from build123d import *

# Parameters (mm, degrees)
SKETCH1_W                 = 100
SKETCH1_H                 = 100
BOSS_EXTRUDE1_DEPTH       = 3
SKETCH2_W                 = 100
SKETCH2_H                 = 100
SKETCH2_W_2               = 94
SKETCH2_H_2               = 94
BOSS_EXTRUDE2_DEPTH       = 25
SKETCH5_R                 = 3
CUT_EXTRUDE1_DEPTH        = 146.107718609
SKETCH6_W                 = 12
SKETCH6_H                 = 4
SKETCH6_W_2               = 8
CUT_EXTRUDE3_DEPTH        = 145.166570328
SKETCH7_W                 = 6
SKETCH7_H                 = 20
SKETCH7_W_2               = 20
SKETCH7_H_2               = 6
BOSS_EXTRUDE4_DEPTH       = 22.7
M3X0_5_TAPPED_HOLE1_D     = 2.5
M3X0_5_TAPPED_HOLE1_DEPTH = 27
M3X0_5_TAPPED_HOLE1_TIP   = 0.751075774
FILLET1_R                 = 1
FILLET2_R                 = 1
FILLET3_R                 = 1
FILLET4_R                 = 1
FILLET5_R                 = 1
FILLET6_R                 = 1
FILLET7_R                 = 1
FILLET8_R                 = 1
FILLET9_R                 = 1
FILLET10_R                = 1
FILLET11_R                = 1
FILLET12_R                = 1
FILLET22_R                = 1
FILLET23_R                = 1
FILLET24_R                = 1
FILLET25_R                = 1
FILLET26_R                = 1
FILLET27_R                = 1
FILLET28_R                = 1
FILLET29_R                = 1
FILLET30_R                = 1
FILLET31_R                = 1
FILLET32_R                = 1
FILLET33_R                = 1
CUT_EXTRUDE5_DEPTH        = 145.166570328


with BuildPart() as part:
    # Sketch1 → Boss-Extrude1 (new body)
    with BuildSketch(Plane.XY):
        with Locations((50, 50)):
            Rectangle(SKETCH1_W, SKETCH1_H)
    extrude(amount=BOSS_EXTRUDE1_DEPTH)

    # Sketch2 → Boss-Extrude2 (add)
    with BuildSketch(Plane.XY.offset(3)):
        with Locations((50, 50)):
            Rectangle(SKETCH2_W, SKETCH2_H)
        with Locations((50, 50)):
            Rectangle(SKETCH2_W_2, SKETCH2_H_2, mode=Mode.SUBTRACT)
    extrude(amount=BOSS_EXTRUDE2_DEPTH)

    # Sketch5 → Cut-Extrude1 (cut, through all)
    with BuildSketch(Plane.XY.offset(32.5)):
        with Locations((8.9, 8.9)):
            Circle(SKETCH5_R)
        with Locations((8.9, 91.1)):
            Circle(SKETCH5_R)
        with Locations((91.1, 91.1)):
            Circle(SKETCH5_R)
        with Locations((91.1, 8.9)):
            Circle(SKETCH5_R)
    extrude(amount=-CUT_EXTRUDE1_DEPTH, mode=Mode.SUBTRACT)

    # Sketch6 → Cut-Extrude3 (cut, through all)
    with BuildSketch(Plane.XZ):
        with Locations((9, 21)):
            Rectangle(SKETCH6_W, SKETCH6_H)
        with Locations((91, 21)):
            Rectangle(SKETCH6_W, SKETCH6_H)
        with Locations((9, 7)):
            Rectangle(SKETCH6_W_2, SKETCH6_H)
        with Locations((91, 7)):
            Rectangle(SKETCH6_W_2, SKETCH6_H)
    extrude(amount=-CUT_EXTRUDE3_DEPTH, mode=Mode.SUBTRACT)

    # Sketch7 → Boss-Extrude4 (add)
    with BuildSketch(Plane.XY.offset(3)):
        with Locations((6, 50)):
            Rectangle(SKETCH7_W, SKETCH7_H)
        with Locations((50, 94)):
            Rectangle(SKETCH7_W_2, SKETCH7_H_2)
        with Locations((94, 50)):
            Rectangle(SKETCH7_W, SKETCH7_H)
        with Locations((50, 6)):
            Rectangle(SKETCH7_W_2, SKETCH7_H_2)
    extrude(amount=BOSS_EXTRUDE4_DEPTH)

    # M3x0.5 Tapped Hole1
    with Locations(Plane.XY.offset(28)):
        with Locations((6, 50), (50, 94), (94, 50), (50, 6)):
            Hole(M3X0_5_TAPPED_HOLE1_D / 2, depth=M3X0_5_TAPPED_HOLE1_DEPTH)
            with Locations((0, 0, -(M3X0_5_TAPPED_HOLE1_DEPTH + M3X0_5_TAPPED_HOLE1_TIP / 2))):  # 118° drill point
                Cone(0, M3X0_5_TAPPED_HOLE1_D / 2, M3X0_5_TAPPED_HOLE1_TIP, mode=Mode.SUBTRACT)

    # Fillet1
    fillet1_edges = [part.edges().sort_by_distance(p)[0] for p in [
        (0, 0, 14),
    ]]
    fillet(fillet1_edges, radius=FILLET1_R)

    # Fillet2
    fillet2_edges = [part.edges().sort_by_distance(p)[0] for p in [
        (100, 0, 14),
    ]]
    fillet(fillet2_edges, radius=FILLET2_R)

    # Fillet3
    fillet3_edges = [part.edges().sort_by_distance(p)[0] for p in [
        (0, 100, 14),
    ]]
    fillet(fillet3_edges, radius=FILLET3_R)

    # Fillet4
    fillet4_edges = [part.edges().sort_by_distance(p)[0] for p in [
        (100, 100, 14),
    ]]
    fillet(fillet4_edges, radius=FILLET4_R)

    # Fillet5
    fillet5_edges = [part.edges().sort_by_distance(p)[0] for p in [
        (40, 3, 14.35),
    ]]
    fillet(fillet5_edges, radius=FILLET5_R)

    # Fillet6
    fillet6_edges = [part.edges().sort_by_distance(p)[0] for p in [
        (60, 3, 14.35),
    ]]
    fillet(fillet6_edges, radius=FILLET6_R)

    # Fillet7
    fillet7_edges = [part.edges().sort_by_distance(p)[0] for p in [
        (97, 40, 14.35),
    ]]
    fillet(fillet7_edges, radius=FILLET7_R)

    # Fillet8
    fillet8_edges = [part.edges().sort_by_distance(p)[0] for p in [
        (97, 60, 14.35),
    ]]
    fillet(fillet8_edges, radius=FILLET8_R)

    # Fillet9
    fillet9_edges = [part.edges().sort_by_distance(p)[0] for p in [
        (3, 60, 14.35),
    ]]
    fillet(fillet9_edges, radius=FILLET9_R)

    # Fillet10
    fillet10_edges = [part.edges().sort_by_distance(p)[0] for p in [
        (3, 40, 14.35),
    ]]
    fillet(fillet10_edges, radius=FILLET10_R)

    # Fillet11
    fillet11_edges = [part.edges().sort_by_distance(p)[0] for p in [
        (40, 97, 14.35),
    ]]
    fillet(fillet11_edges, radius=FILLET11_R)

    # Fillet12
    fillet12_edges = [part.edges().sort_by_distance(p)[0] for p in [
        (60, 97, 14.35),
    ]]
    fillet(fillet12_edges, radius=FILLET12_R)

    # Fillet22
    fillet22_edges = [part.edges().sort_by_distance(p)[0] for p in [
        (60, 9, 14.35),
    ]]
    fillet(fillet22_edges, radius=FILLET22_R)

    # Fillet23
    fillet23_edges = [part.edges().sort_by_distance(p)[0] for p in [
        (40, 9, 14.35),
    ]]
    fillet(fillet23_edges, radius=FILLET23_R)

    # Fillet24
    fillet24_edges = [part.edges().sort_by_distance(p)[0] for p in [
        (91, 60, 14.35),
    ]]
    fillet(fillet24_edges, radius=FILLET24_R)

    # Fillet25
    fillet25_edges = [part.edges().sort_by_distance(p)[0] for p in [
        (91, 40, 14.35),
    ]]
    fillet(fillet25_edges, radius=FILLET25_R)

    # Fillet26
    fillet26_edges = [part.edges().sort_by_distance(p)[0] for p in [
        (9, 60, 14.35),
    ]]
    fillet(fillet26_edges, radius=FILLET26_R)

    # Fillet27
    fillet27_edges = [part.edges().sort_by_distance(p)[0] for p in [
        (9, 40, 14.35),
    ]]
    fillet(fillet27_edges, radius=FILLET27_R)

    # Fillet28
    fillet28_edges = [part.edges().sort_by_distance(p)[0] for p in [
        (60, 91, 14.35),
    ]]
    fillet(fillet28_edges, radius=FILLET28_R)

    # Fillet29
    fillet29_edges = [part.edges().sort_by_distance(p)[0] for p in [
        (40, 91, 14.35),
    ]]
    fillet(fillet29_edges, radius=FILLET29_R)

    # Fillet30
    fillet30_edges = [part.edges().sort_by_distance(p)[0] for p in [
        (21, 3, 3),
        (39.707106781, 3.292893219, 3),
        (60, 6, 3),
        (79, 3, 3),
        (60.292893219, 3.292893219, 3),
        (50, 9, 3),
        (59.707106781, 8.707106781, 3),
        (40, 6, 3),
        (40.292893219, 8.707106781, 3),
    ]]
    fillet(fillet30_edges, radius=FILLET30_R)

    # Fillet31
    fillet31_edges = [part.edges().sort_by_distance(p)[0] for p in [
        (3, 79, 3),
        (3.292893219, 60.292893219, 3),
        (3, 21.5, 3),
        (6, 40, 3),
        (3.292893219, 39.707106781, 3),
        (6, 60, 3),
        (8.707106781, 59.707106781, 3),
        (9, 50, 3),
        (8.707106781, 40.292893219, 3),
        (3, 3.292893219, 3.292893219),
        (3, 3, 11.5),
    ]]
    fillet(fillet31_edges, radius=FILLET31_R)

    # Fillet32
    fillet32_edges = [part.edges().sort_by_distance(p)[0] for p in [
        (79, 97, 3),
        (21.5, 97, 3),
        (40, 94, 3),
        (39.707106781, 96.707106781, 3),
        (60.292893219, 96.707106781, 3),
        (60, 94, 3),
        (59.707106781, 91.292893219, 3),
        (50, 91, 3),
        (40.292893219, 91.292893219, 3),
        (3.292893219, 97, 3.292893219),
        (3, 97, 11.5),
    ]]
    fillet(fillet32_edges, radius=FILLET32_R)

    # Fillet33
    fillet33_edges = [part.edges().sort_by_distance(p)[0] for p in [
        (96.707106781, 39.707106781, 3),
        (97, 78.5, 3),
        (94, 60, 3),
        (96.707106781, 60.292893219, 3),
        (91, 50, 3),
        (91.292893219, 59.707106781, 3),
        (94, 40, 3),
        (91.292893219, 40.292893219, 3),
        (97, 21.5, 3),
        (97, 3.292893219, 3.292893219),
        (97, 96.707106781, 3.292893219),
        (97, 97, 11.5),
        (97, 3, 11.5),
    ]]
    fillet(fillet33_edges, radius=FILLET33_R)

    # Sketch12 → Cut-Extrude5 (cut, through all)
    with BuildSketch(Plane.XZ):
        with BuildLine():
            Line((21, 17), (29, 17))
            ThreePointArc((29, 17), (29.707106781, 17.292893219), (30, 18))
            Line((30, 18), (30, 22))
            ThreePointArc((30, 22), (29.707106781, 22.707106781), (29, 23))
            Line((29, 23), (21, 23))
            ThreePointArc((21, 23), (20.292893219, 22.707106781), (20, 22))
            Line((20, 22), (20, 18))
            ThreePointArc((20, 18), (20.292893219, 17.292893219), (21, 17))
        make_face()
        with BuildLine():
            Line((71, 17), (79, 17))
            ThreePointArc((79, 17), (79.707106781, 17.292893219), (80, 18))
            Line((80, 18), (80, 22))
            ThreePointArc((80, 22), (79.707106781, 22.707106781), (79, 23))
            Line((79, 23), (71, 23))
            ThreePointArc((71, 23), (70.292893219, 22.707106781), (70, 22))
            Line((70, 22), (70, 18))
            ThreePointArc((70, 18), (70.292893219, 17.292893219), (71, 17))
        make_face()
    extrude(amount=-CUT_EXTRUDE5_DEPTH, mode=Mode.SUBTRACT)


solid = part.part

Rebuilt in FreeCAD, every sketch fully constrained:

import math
import FreeCAD as App
import Part
import Sketcher

V = App.Vector
Q = App.Units.Quantity


def edges_at(feature, points):
    """Names of the edges that pass closest to the given points."""
    edges = feature.Shape.Edges
    near = lambda p: min(range(len(edges)), key=lambda i: edges[i].distToShape(Part.Vertex(*p))[0])
    return sorted({f"Edge{near(p) + 1}" for p in points})


def add_polygon(sketch, points):
    """Adds a closed chain of lines whose ends are joined by coincident constraints."""
    first, n = sketch.GeometryCount, len(points)
    for a, b in zip(points, points[1:] + points[:1]):
        sketch.addGeometry(Part.LineSegment(App.Vector(*a, 0), App.Vector(*b, 0)), False)
    for i in range(n):
        sketch.addConstraint(Sketcher.Constraint("Coincident", first + i, 2, first + (i + 1) % n, 1))

doc = App.newDocument("Part")
body = doc.addObject("PartDesign::Body", "Body")

# Sketch on XY plane
sketch1 = body.newObject("Sketcher::SketchObject", "Sketch")
sketch1.AttachmentSupport = (doc.getObject("XY_Plane"), [""])
sketch1.MapMode = "FlatFace"
add_polygon(sketch1, [(0, 100), (0, 0), (100, 0), (100, 100)])  # lines 0-3
sketch1.addConstraint(Sketcher.Constraint("Vertical", 0))
sketch1.addConstraint(Sketcher.Constraint("Horizontal", 1))
sketch1.addConstraint(Sketcher.Constraint("Vertical", 2))
sketch1.addConstraint(Sketcher.Constraint("Horizontal", 3))
sketch1.addConstraint(Sketcher.Constraint("Coincident", 0, 2, -1, 1))
sketch1.addConstraint(Sketcher.Constraint("Equal", 3, 0))
sketch1.addConstraint(Sketcher.Constraint("DistanceX", 1, 1, 1, 2, Q("100 mm")))
pad1 = body.newObject("PartDesign::Pad", "Pad")
pad1.Profile = sketch1
pad1.Length = 3

# Sketch on XY plane
sketch2 = body.newObject("Sketcher::SketchObject", "Sketch001")
sketch2.AttachmentSupport = (doc.getObject("XY_Plane"), [""])
sketch2.MapMode = "FlatFace"
sketch2.AttachmentOffset = App.Placement(V(0, 0, 3), App.Rotation())
add_polygon(sketch2, [(0, 100), (0, 0), (100, 0), (100, 100)])  # lines 0-3
add_polygon(sketch2, [(97, 3), (3, 3), (3, 97), (97, 97)])  # lines 4-7
sketch2.addConstraint(Sketcher.Constraint("Vertical", 0))
sketch2.addConstraint(Sketcher.Constraint("Horizontal", 1))
sketch2.addConstraint(Sketcher.Constraint("Vertical", 2))
sketch2.addConstraint(Sketcher.Constraint("Horizontal", 3))
sketch2.addConstraint(Sketcher.Constraint("Horizontal", 4))
sketch2.addConstraint(Sketcher.Constraint("Vertical", 5))
sketch2.addConstraint(Sketcher.Constraint("Horizontal", 6))
sketch2.addConstraint(Sketcher.Constraint("Vertical", 7))
sketch2.addConstraint(Sketcher.Constraint("Coincident", 0, 2, -1, 1))
sketch2.addConstraint(Sketcher.Constraint("Equal", 3, 0))
sketch2.addConstraint(Sketcher.Constraint("Equal", 6, 5))
sketch2.addConstraint(Sketcher.Constraint("DistanceX", 1, 1, 1, 2, Q("100 mm")))
sketch2.addConstraint(Sketcher.Constraint("DistanceX", 4, 2, 4, 1, Q("94 mm")))
sketch2.addConstraint(Sketcher.Constraint("DistanceX", -1, 1, 4, 2, Q("3 mm")))
sketch2.addConstraint(Sketcher.Constraint("DistanceY", -1, 1, 4, 2, Q("3 mm")))
pad2 = body.newObject("PartDesign::Pad", "Pad001")
pad2.Profile = sketch2
pad2.Length = 25

# Sketch on XY plane
sketch3 = body.newObject("Sketcher::SketchObject", "Sketch002")
sketch3.AttachmentSupport = (doc.getObject("XY_Plane"), [""])
sketch3.MapMode = "FlatFace"
sketch3.AttachmentOffset = App.Placement(V(0, 0, 32.5), App.Rotation())
sketch3.addGeometry(Part.Circle(V(8.9, 8.9, 0), V(0, 0, 1), 3), False)
sketch3.addGeometry(Part.Circle(V(8.9, 91.1, 0), V(0, 0, 1), 3), False)
sketch3.addGeometry(Part.Circle(V(91.1, 91.1, 0), V(0, 0, 1), 3), False)
sketch3.addGeometry(Part.Circle(V(91.1, 8.9, 0), V(0, 0, 1), 3), False)
sketch3.addConstraint(Sketcher.Constraint("Equal", 0, 1))
sketch3.addConstraint(Sketcher.Constraint("Equal", 1, 2))
sketch3.addConstraint(Sketcher.Constraint("Equal", 2, 3))
sketch3.addConstraint(Sketcher.Constraint("Horizontal", 1, 3, 2, 3))
sketch3.addConstraint(Sketcher.Constraint("Horizontal", 0, 3, 3, 3))
sketch3.addConstraint(Sketcher.Constraint("Vertical", 0, 3, 1, 3))
sketch3.addConstraint(Sketcher.Constraint("Vertical", 2, 3, 3, 3))
sketch3.addConstraint(Sketcher.Constraint("Diameter", 0, Q("6 mm")))
sketch3.addConstraint(Sketcher.Constraint("DistanceX", -1, 1, 0, 3, Q("8.9 mm")))
sketch3.addConstraint(Sketcher.Constraint("DistanceY", -1, 1, 0, 3, Q("8.9 mm")))
sketch3.addConstraint(Sketcher.Constraint("DistanceY", -1, 1, 1, 3, Q("91.1 mm")))
sketch3.addConstraint(Sketcher.Constraint("DistanceX", -1, 1, 2, 3, Q("91.1 mm")))
pocket1 = body.newObject("PartDesign::Pocket", "Pocket")
pocket1.Profile = sketch3
pocket1.Type = "ThroughAll"

# Sketch on XZ plane
sketch4 = body.newObject("Sketcher::SketchObject", "Sketch003")
sketch4.AttachmentSupport = (doc.getObject("XZ_Plane"), [""])
sketch4.MapMode = "FlatFace"
add_polygon(sketch4, [(3, 23), (3, 19), (15, 19), (15, 23)])  # lines 0-3
add_polygon(sketch4, [(85, 23), (85, 19), (97, 19), (97, 23)])  # lines 4-7
add_polygon(sketch4, [(5, 9), (5, 5), (13, 5), (13, 9)])  # lines 8-11
add_polygon(sketch4, [(87, 9), (87, 5), (95, 5), (95, 9)])  # lines 12-15
sketch4.addConstraint(Sketcher.Constraint("Vertical", 0))
sketch4.addConstraint(Sketcher.Constraint("Horizontal", 1))
sketch4.addConstraint(Sketcher.Constraint("Vertical", 2))
sketch4.addConstraint(Sketcher.Constraint("Horizontal", 3))
sketch4.addConstraint(Sketcher.Constraint("Vertical", 4))
sketch4.addConstraint(Sketcher.Constraint("Horizontal", 5))
sketch4.addConstraint(Sketcher.Constraint("Vertical", 6))
sketch4.addConstraint(Sketcher.Constraint("Horizontal", 7))
sketch4.addConstraint(Sketcher.Constraint("Vertical", 8))
sketch4.addConstraint(Sketcher.Constraint("Horizontal", 9))
sketch4.addConstraint(Sketcher.Constraint("Vertical", 10))
sketch4.addConstraint(Sketcher.Constraint("Horizontal", 11))
sketch4.addConstraint(Sketcher.Constraint("Vertical", 12))
sketch4.addConstraint(Sketcher.Constraint("Horizontal", 13))
sketch4.addConstraint(Sketcher.Constraint("Vertical", 14))
sketch4.addConstraint(Sketcher.Constraint("Horizontal", 15))
sketch4.addConstraint(Sketcher.Constraint("Horizontal", 1, 2, 4, 2))
sketch4.addConstraint(Sketcher.Constraint("Horizontal", 3, 2, 6, 2))
sketch4.addConstraint(Sketcher.Constraint("Horizontal", 9, 2, 12, 2))
sketch4.addConstraint(Sketcher.Constraint("Horizontal", 11, 2, 14, 2))
sketch4.addConstraint(Sketcher.Constraint("Equal", 3, 5))
sketch4.addConstraint(Sketcher.Constraint("Equal", 11, 13))
sketch4.addConstraint(Sketcher.Constraint("Equal", 6, 8))
sketch4.addConstraint(Sketcher.Constraint("DistanceX", 1, 1, 1, 2, Q("12 mm")))
sketch4.addConstraint(Sketcher.Constraint("DistanceX", 9, 1, 9, 2, Q("8 mm")))
sketch4.addConstraint(Sketcher.Constraint("DistanceY", 0, 2, 0, 1, Q("4 mm")))
sketch4.addConstraint(Sketcher.Constraint("DistanceX", -1, 1, 0, 2, Q("3 mm")))
sketch4.addConstraint(Sketcher.Constraint("DistanceY", -1, 1, 0, 2, Q("19 mm")))
sketch4.addConstraint(Sketcher.Constraint("DistanceX", -1, 1, 4, 2, Q("85 mm")))
sketch4.addConstraint(Sketcher.Constraint("DistanceX", -1, 1, 8, 2, Q("5 mm")))
sketch4.addConstraint(Sketcher.Constraint("DistanceY", -1, 1, 8, 2, Q("5 mm")))
sketch4.addConstraint(Sketcher.Constraint("DistanceX", -1, 1, 12, 2, Q("87 mm")))
pocket2 = body.newObject("PartDesign::Pocket", "Pocket001")
pocket2.Profile = sketch4
pocket2.Type = "ThroughAll"

# Sketch on XY plane
sketch5 = body.newObject("Sketcher::SketchObject", "Sketch004")
sketch5.AttachmentSupport = (doc.getObject("XY_Plane"), [""])
sketch5.MapMode = "FlatFace"
sketch5.AttachmentOffset = App.Placement(V(0, 0, 3), App.Rotation())
add_polygon(sketch5, [(3, 60), (3, 40), (9, 40), (9, 60)])  # lines 0-3
add_polygon(sketch5, [(40, 97), (40, 91), (60, 91), (60, 97)])  # lines 4-7
add_polygon(sketch5, [(91, 60), (91, 40), (97, 40), (97, 60)])  # lines 8-11
add_polygon(sketch5, [(40, 9), (40, 3), (60, 3), (60, 9)])  # lines 12-15
sketch5.addConstraint(Sketcher.Constraint("Vertical", 0))
sketch5.addConstraint(Sketcher.Constraint("Horizontal", 1))
sketch5.addConstraint(Sketcher.Constraint("Vertical", 2))
sketch5.addConstraint(Sketcher.Constraint("Horizontal", 3))
sketch5.addConstraint(Sketcher.Constraint("Vertical", 4))
sketch5.addConstraint(Sketcher.Constraint("Horizontal", 5))
sketch5.addConstraint(Sketcher.Constraint("Vertical", 6))
sketch5.addConstraint(Sketcher.Constraint("Horizontal", 7))
sketch5.addConstraint(Sketcher.Constraint("Vertical", 8))
sketch5.addConstraint(Sketcher.Constraint("Horizontal", 9))
sketch5.addConstraint(Sketcher.Constraint("Vertical", 10))
sketch5.addConstraint(Sketcher.Constraint("Horizontal", 11))
sketch5.addConstraint(Sketcher.Constraint("Vertical", 12))
sketch5.addConstraint(Sketcher.Constraint("Horizontal", 13))
sketch5.addConstraint(Sketcher.Constraint("Vertical", 14))
sketch5.addConstraint(Sketcher.Constraint("Horizontal", 15))
sketch5.addConstraint(Sketcher.Constraint("Horizontal", 1, 2, 8, 2))
sketch5.addConstraint(Sketcher.Constraint("Horizontal", 3, 2, 10, 2))
sketch5.addConstraint(Sketcher.Constraint("Vertical", 7, 2, 12, 2))
sketch5.addConstraint(Sketcher.Constraint("Vertical", 6, 2, 13, 2))
sketch5.addConstraint(Sketcher.Constraint("Equal", 3, 9))
sketch5.addConstraint(Sketcher.Constraint("Equal", 15, 0))
sketch5.addConstraint(Sketcher.Constraint("Equal", 11, 4))
sketch5.addConstraint(Sketcher.Constraint("Equal", 6, 12))
sketch5.addConstraint(Sketcher.Constraint("DistanceX", 1, 1, 1, 2, Q("6 mm")))
sketch5.addConstraint(Sketcher.Constraint("DistanceX", 5, 1, 5, 2, Q("20 mm")))
sketch5.addConstraint(Sketcher.Constraint("DistanceX", -1, 1, 0, 2, Q("3 mm")))
sketch5.addConstraint(Sketcher.Constraint("DistanceY", -1, 1, 0, 2, Q("40 mm")))
sketch5.addConstraint(Sketcher.Constraint("DistanceX", -1, 1, 4, 2, Q("40 mm")))
sketch5.addConstraint(Sketcher.Constraint("DistanceY", -1, 1, 4, 2, Q("91 mm")))
sketch5.addConstraint(Sketcher.Constraint("DistanceX", -1, 1, 8, 2, Q("91 mm")))
sketch5.addConstraint(Sketcher.Constraint("DistanceY", -1, 1, 12, 2, Q("3 mm")))
pad3 = body.newObject("PartDesign::Pad", "Pad002")
pad3.Profile = sketch5
pad3.Length = 22.7

# Sketch on XY plane
sketch6 = body.newObject("Sketcher::SketchObject", "Sketch005")
sketch6.AttachmentSupport = (doc.getObject("XY_Plane"), [""])
sketch6.MapMode = "FlatFace"
sketch6.AttachmentOffset = App.Placement(V(0, 0, 28), App.Rotation())
sketch6.addGeometry(Part.Circle(V(6, 50, 0), V(0, 0, 1), 1.25), False)
sketch6.addGeometry(Part.Circle(V(50, 94, 0), V(0, 0, 1), 1.25), False)
sketch6.addGeometry(Part.Circle(V(94, 50, 0), V(0, 0, 1), 1.25), False)
sketch6.addGeometry(Part.Circle(V(50, 6, 0), V(0, 0, 1), 1.25), False)
sketch6.addConstraint(Sketcher.Constraint("Equal", 0, 1))
sketch6.addConstraint(Sketcher.Constraint("Equal", 1, 2))
sketch6.addConstraint(Sketcher.Constraint("Equal", 2, 3))
sketch6.addConstraint(Sketcher.Constraint("Horizontal", 0, 3, 2, 3))
sketch6.addConstraint(Sketcher.Constraint("Vertical", 1, 3, 3, 3))
sketch6.addConstraint(Sketcher.Constraint("Diameter", 0, Q("2.5 mm")))
sketch6.addConstraint(Sketcher.Constraint("DistanceX", -1, 1, 0, 3, Q("6 mm")))
sketch6.addConstraint(Sketcher.Constraint("DistanceY", -1, 1, 0, 3, Q("50 mm")))
sketch6.addConstraint(Sketcher.Constraint("DistanceX", -1, 1, 1, 3, Q("50 mm")))
sketch6.addConstraint(Sketcher.Constraint("DistanceY", -1, 1, 1, 3, Q("94 mm")))
sketch6.addConstraint(Sketcher.Constraint("DistanceX", -1, 1, 2, 3, Q("94 mm")))
sketch6.addConstraint(Sketcher.Constraint("DistanceY", -1, 1, 3, 3, Q("6 mm")))
doc.recompute()
hole = body.newObject("PartDesign::Hole", "Hole")
hole.Profile = sketch6
hole.ThreadType = "None"
hole.Diameter = 2.5
hole.DepthType = "Dimension"
hole.Depth = 27
hole.DrillPoint = "Angled"
hole.DrillPointAngle = 118
doc.recompute()

fillet = body.newObject("PartDesign::Fillet", "Fillet")
fillet.Base = (hole, edges_at(hole, [(0, 0, 14)]))
fillet.Radius = 1
doc.recompute()

fillet2 = body.newObject("PartDesign::Fillet", "Fillet001")
fillet2.Base = (fillet, edges_at(fillet, [(100, 0, 14)]))
fillet2.Radius = 1
doc.recompute()

fillet3 = body.newObject("PartDesign::Fillet", "Fillet002")
fillet3.Base = (fillet2, edges_at(fillet2, [(0, 100, 14)]))
fillet3.Radius = 1
doc.recompute()

fillet4 = body.newObject("PartDesign::Fillet", "Fillet003")
fillet4.Base = (fillet3, edges_at(fillet3, [(100, 100, 14)]))
fillet4.Radius = 1
doc.recompute()

fillet5 = body.newObject("PartDesign::Fillet", "Fillet004")
fillet5.Base = (fillet4, edges_at(fillet4, [(40, 3, 14.35)]))
fillet5.Radius = 1
doc.recompute()

fillet6 = body.newObject("PartDesign::Fillet", "Fillet005")
fillet6.Base = (fillet5, edges_at(fillet5, [(60, 3, 14.35)]))
fillet6.Radius = 1
doc.recompute()

fillet7 = body.newObject("PartDesign::Fillet", "Fillet006")
fillet7.Base = (fillet6, edges_at(fillet6, [(97, 40, 14.35)]))
fillet7.Radius = 1
doc.recompute()

fillet8 = body.newObject("PartDesign::Fillet", "Fillet007")
fillet8.Base = (fillet7, edges_at(fillet7, [(97, 60, 14.35)]))
fillet8.Radius = 1
doc.recompute()

fillet9 = body.newObject("PartDesign::Fillet", "Fillet008")
fillet9.Base = (fillet8, edges_at(fillet8, [(3, 60, 14.35)]))
fillet9.Radius = 1
doc.recompute()

fillet10 = body.newObject("PartDesign::Fillet", "Fillet009")
fillet10.Base = (fillet9, edges_at(fillet9, [(3, 40, 14.35)]))
fillet10.Radius = 1
doc.recompute()

fillet11 = body.newObject("PartDesign::Fillet", "Fillet010")
fillet11.Base = (fillet10, edges_at(fillet10, [(40, 97, 14.35)]))
fillet11.Radius = 1
doc.recompute()

fillet12 = body.newObject("PartDesign::Fillet", "Fillet011")
fillet12.Base = (fillet11, edges_at(fillet11, [(60, 97, 14.35)]))
fillet12.Radius = 1
doc.recompute()

fillet13 = body.newObject("PartDesign::Fillet", "Fillet012")
fillet13.Base = (fillet12, edges_at(fillet12, [(60, 9, 14.35)]))
fillet13.Radius = 1
doc.recompute()

fillet14 = body.newObject("PartDesign::Fillet", "Fillet013")
fillet14.Base = (fillet13, edges_at(fillet13, [(40, 9, 14.35)]))
fillet14.Radius = 1
doc.recompute()

fillet15 = body.newObject("PartDesign::Fillet", "Fillet014")
fillet15.Base = (fillet14, edges_at(fillet14, [(91, 60, 14.35)]))
fillet15.Radius = 1
doc.recompute()

fillet16 = body.newObject("PartDesign::Fillet", "Fillet015")
fillet16.Base = (fillet15, edges_at(fillet15, [(91, 40, 14.35)]))
fillet16.Radius = 1
doc.recompute()

fillet17 = body.newObject("PartDesign::Fillet", "Fillet016")
fillet17.Base = (fillet16, edges_at(fillet16, [(9, 60, 14.35)]))
fillet17.Radius = 1
doc.recompute()

fillet18 = body.newObject("PartDesign::Fillet", "Fillet017")
fillet18.Base = (fillet17, edges_at(fillet17, [(9, 40, 14.35)]))
fillet18.Radius = 1
doc.recompute()

fillet19 = body.newObject("PartDesign::Fillet", "Fillet018")
fillet19.Base = (fillet18, edges_at(fillet18, [(60, 91, 14.35)]))
fillet19.Radius = 1
doc.recompute()

fillet20 = body.newObject("PartDesign::Fillet", "Fillet019")
fillet20.Base = (fillet19, edges_at(fillet19, [(40, 91, 14.35)]))
fillet20.Radius = 1
doc.recompute()

fillet21 = body.newObject("PartDesign::Fillet", "Fillet020")
fillet21.Base = (fillet20, edges_at(fillet20, [
    (21, 3, 3),
    (39.707, 3.293, 3),
    (60, 6, 3),
    (79, 3, 3),
    (60.293, 3.293, 3),
    (50, 9, 3),
    (59.707, 8.707, 3),
    (40, 6, 3),
    (40.293, 8.707, 3),
]))
fillet21.Radius = 1
doc.recompute()

fillet22 = body.newObject("PartDesign::Fillet", "Fillet021")
fillet22.Base = (fillet21, edges_at(fillet21, [
    (3, 79, 3),
    (3.293, 60.293, 3),
    (3, 21.5, 3),
    (6, 40, 3),
    (3.293, 39.707, 3),
    (6, 60, 3),
    (8.707, 59.707, 3),
    (9, 50, 3),
    (8.707, 40.293, 3),
    (3, 3.293, 3.293),
    (3, 3, 11.5),
]))
fillet22.Radius = 1
doc.recompute()

fillet23 = body.newObject("PartDesign::Fillet", "Fillet022")
fillet23.Base = (fillet22, edges_at(fillet22, [
    (79, 97, 3),
    (21.5, 97, 3),
    (40, 94, 3),
    (39.707, 96.707, 3),
    (60.293, 96.707, 3),
    (60, 94, 3),
    (59.707, 91.293, 3),
    (50, 91, 3),
    (40.293, 91.293, 3),
    (3.293, 97, 3.293),
    (3, 97, 11.5),
]))
fillet23.Radius = 1
doc.recompute()

fillet24 = body.newObject("PartDesign::Fillet", "Fillet023")
fillet24.Base = (fillet23, edges_at(fillet23, [
    (96.707, 39.707, 3),
    (97, 78.5, 3),
    (94, 60, 3),
    (96.707, 60.293, 3),
    (91, 50, 3),
    (91.293, 59.707, 3),
    (94, 40, 3),
    (91.293, 40.293, 3),
    (97, 21.5, 3),
    (97, 3.293, 3.293),
    (97, 96.707, 3.293),
    (97, 97, 11.5),
    (97, 3, 11.5),
]))
fillet24.Radius = 1

# Sketch on XZ plane
sketch7 = body.newObject("Sketcher::SketchObject", "Sketch006")
sketch7.AttachmentSupport = (doc.getObject("XZ_Plane"), [""])
sketch7.MapMode = "FlatFace"
sketch7.addGeometry(Part.LineSegment(V(21, 17, 0), V(29, 17, 0)), False)
sketch7.addGeometry(Part.ArcOfCircle(Part.Circle(V(29, 18, 0), V(0, 0, 1), 1), math.radians(-90), math.radians(0)), False)
sketch7.addGeometry(Part.LineSegment(V(30, 18, 0), V(30, 22, 0)), False)
sketch7.addGeometry(Part.ArcOfCircle(Part.Circle(V(29, 22, 0), V(0, 0, 1), 1), math.radians(0), math.radians(90)), False)
sketch7.addGeometry(Part.LineSegment(V(29, 23, 0), V(21, 23, 0)), False)
sketch7.addGeometry(Part.ArcOfCircle(Part.Circle(V(21, 22, 0), V(0, 0, 1), 1), math.radians(90), math.radians(180)), False)
sketch7.addGeometry(Part.LineSegment(V(20, 22, 0), V(20, 18, 0)), False)
sketch7.addGeometry(Part.ArcOfCircle(Part.Circle(V(21, 18, 0), V(0, 0, 1), 1), math.radians(-180), math.radians(-90)), False)
sketch7.addGeometry(Part.LineSegment(V(71, 17, 0), V(79, 17, 0)), False)
sketch7.addGeometry(Part.ArcOfCircle(Part.Circle(V(79, 18, 0), V(0, 0, 1), 1), math.radians(-90), math.radians(0)), False)
sketch7.addGeometry(Part.LineSegment(V(80, 18, 0), V(80, 22, 0)), False)
sketch7.addGeometry(Part.ArcOfCircle(Part.Circle(V(79, 22, 0), V(0, 0, 1), 1), math.radians(0), math.radians(90)), False)
sketch7.addGeometry(Part.LineSegment(V(79, 23, 0), V(71, 23, 0)), False)
sketch7.addGeometry(Part.ArcOfCircle(Part.Circle(V(71, 22, 0), V(0, 0, 1), 1), math.radians(90), math.radians(180)), False)
sketch7.addGeometry(Part.LineSegment(V(70, 22, 0), V(70, 18, 0)), False)
sketch7.addGeometry(Part.ArcOfCircle(Part.Circle(V(71, 18, 0), V(0, 0, 1), 1), math.radians(-180), math.radians(-90)), False)
sketch7.addConstraint(Sketcher.Constraint("Tangent", 0, 2, 1, 1))
sketch7.addConstraint(Sketcher.Constraint("Tangent", 1, 2, 2, 1))
sketch7.addConstraint(Sketcher.Constraint("Tangent", 2, 2, 3, 1))
sketch7.addConstraint(Sketcher.Constraint("Tangent", 3, 2, 4, 1))
sketch7.addConstraint(Sketcher.Constraint("Tangent", 4, 2, 5, 1))
sketch7.addConstraint(Sketcher.Constraint("Tangent", 5, 2, 6, 1))
sketch7.addConstraint(Sketcher.Constraint("Tangent", 6, 2, 7, 1))
sketch7.addConstraint(Sketcher.Constraint("Tangent", 7, 2, 0, 1))
sketch7.addConstraint(Sketcher.Constraint("Tangent", 8, 2, 9, 1))
sketch7.addConstraint(Sketcher.Constraint("Tangent", 9, 2, 10, 1))
sketch7.addConstraint(Sketcher.Constraint("Tangent", 10, 2, 11, 1))
sketch7.addConstraint(Sketcher.Constraint("Tangent", 11, 2, 12, 1))
sketch7.addConstraint(Sketcher.Constraint("Tangent", 12, 2, 13, 1))
sketch7.addConstraint(Sketcher.Constraint("Tangent", 13, 2, 14, 1))
sketch7.addConstraint(Sketcher.Constraint("Tangent", 14, 2, 15, 1))
sketch7.addConstraint(Sketcher.Constraint("Tangent", 15, 2, 8, 1))
sketch7.addConstraint(Sketcher.Constraint("Horizontal", 0))
sketch7.addConstraint(Sketcher.Constraint("Vertical", 2))
sketch7.addConstraint(Sketcher.Constraint("Horizontal", 4))
sketch7.addConstraint(Sketcher.Constraint("Vertical", 6))
sketch7.addConstraint(Sketcher.Constraint("Horizontal", 8))
sketch7.addConstraint(Sketcher.Constraint("Vertical", 10))
sketch7.addConstraint(Sketcher.Constraint("Horizontal", 12))
sketch7.addConstraint(Sketcher.Constraint("Vertical", 14))
sketch7.addConstraint(Sketcher.Constraint("Equal", 1, 3))
sketch7.addConstraint(Sketcher.Constraint("Equal", 3, 5))
sketch7.addConstraint(Sketcher.Constraint("Equal", 5, 7))
sketch7.addConstraint(Sketcher.Constraint("Equal", 7, 9))
sketch7.addConstraint(Sketcher.Constraint("Equal", 9, 11))
sketch7.addConstraint(Sketcher.Constraint("Equal", 11, 13))
sketch7.addConstraint(Sketcher.Constraint("Equal", 13, 15))
sketch7.addConstraint(Sketcher.Constraint("Horizontal", 7, 3, 9, 3))
sketch7.addConstraint(Sketcher.Constraint("Horizontal", 5, 3, 11, 3))
sketch7.addConstraint(Sketcher.Constraint("Equal", 4, 8))
sketch7.addConstraint(Sketcher.Constraint("Radius", 1, Q("1 mm")))
sketch7.addConstraint(Sketcher.Constraint("DistanceX", 0, 1, 0, 2, Q("8 mm")))
sketch7.addConstraint(Sketcher.Constraint("DistanceY", 2, 1, 2, 2, Q("4 mm")))
sketch7.addConstraint(Sketcher.Constraint("DistanceX", -1, 1, 1, 3, Q("29 mm")))
sketch7.addConstraint(Sketcher.Constraint("DistanceY", -1, 1, 1, 3, Q("18 mm")))
sketch7.addConstraint(Sketcher.Constraint("DistanceX", -1, 1, 9, 3, Q("79 mm")))
pocket3 = body.newObject("PartDesign::Pocket", "Pocket002")
pocket3.Profile = sketch7
pocket3.Type = "ThroughAll"

doc.recompute()
